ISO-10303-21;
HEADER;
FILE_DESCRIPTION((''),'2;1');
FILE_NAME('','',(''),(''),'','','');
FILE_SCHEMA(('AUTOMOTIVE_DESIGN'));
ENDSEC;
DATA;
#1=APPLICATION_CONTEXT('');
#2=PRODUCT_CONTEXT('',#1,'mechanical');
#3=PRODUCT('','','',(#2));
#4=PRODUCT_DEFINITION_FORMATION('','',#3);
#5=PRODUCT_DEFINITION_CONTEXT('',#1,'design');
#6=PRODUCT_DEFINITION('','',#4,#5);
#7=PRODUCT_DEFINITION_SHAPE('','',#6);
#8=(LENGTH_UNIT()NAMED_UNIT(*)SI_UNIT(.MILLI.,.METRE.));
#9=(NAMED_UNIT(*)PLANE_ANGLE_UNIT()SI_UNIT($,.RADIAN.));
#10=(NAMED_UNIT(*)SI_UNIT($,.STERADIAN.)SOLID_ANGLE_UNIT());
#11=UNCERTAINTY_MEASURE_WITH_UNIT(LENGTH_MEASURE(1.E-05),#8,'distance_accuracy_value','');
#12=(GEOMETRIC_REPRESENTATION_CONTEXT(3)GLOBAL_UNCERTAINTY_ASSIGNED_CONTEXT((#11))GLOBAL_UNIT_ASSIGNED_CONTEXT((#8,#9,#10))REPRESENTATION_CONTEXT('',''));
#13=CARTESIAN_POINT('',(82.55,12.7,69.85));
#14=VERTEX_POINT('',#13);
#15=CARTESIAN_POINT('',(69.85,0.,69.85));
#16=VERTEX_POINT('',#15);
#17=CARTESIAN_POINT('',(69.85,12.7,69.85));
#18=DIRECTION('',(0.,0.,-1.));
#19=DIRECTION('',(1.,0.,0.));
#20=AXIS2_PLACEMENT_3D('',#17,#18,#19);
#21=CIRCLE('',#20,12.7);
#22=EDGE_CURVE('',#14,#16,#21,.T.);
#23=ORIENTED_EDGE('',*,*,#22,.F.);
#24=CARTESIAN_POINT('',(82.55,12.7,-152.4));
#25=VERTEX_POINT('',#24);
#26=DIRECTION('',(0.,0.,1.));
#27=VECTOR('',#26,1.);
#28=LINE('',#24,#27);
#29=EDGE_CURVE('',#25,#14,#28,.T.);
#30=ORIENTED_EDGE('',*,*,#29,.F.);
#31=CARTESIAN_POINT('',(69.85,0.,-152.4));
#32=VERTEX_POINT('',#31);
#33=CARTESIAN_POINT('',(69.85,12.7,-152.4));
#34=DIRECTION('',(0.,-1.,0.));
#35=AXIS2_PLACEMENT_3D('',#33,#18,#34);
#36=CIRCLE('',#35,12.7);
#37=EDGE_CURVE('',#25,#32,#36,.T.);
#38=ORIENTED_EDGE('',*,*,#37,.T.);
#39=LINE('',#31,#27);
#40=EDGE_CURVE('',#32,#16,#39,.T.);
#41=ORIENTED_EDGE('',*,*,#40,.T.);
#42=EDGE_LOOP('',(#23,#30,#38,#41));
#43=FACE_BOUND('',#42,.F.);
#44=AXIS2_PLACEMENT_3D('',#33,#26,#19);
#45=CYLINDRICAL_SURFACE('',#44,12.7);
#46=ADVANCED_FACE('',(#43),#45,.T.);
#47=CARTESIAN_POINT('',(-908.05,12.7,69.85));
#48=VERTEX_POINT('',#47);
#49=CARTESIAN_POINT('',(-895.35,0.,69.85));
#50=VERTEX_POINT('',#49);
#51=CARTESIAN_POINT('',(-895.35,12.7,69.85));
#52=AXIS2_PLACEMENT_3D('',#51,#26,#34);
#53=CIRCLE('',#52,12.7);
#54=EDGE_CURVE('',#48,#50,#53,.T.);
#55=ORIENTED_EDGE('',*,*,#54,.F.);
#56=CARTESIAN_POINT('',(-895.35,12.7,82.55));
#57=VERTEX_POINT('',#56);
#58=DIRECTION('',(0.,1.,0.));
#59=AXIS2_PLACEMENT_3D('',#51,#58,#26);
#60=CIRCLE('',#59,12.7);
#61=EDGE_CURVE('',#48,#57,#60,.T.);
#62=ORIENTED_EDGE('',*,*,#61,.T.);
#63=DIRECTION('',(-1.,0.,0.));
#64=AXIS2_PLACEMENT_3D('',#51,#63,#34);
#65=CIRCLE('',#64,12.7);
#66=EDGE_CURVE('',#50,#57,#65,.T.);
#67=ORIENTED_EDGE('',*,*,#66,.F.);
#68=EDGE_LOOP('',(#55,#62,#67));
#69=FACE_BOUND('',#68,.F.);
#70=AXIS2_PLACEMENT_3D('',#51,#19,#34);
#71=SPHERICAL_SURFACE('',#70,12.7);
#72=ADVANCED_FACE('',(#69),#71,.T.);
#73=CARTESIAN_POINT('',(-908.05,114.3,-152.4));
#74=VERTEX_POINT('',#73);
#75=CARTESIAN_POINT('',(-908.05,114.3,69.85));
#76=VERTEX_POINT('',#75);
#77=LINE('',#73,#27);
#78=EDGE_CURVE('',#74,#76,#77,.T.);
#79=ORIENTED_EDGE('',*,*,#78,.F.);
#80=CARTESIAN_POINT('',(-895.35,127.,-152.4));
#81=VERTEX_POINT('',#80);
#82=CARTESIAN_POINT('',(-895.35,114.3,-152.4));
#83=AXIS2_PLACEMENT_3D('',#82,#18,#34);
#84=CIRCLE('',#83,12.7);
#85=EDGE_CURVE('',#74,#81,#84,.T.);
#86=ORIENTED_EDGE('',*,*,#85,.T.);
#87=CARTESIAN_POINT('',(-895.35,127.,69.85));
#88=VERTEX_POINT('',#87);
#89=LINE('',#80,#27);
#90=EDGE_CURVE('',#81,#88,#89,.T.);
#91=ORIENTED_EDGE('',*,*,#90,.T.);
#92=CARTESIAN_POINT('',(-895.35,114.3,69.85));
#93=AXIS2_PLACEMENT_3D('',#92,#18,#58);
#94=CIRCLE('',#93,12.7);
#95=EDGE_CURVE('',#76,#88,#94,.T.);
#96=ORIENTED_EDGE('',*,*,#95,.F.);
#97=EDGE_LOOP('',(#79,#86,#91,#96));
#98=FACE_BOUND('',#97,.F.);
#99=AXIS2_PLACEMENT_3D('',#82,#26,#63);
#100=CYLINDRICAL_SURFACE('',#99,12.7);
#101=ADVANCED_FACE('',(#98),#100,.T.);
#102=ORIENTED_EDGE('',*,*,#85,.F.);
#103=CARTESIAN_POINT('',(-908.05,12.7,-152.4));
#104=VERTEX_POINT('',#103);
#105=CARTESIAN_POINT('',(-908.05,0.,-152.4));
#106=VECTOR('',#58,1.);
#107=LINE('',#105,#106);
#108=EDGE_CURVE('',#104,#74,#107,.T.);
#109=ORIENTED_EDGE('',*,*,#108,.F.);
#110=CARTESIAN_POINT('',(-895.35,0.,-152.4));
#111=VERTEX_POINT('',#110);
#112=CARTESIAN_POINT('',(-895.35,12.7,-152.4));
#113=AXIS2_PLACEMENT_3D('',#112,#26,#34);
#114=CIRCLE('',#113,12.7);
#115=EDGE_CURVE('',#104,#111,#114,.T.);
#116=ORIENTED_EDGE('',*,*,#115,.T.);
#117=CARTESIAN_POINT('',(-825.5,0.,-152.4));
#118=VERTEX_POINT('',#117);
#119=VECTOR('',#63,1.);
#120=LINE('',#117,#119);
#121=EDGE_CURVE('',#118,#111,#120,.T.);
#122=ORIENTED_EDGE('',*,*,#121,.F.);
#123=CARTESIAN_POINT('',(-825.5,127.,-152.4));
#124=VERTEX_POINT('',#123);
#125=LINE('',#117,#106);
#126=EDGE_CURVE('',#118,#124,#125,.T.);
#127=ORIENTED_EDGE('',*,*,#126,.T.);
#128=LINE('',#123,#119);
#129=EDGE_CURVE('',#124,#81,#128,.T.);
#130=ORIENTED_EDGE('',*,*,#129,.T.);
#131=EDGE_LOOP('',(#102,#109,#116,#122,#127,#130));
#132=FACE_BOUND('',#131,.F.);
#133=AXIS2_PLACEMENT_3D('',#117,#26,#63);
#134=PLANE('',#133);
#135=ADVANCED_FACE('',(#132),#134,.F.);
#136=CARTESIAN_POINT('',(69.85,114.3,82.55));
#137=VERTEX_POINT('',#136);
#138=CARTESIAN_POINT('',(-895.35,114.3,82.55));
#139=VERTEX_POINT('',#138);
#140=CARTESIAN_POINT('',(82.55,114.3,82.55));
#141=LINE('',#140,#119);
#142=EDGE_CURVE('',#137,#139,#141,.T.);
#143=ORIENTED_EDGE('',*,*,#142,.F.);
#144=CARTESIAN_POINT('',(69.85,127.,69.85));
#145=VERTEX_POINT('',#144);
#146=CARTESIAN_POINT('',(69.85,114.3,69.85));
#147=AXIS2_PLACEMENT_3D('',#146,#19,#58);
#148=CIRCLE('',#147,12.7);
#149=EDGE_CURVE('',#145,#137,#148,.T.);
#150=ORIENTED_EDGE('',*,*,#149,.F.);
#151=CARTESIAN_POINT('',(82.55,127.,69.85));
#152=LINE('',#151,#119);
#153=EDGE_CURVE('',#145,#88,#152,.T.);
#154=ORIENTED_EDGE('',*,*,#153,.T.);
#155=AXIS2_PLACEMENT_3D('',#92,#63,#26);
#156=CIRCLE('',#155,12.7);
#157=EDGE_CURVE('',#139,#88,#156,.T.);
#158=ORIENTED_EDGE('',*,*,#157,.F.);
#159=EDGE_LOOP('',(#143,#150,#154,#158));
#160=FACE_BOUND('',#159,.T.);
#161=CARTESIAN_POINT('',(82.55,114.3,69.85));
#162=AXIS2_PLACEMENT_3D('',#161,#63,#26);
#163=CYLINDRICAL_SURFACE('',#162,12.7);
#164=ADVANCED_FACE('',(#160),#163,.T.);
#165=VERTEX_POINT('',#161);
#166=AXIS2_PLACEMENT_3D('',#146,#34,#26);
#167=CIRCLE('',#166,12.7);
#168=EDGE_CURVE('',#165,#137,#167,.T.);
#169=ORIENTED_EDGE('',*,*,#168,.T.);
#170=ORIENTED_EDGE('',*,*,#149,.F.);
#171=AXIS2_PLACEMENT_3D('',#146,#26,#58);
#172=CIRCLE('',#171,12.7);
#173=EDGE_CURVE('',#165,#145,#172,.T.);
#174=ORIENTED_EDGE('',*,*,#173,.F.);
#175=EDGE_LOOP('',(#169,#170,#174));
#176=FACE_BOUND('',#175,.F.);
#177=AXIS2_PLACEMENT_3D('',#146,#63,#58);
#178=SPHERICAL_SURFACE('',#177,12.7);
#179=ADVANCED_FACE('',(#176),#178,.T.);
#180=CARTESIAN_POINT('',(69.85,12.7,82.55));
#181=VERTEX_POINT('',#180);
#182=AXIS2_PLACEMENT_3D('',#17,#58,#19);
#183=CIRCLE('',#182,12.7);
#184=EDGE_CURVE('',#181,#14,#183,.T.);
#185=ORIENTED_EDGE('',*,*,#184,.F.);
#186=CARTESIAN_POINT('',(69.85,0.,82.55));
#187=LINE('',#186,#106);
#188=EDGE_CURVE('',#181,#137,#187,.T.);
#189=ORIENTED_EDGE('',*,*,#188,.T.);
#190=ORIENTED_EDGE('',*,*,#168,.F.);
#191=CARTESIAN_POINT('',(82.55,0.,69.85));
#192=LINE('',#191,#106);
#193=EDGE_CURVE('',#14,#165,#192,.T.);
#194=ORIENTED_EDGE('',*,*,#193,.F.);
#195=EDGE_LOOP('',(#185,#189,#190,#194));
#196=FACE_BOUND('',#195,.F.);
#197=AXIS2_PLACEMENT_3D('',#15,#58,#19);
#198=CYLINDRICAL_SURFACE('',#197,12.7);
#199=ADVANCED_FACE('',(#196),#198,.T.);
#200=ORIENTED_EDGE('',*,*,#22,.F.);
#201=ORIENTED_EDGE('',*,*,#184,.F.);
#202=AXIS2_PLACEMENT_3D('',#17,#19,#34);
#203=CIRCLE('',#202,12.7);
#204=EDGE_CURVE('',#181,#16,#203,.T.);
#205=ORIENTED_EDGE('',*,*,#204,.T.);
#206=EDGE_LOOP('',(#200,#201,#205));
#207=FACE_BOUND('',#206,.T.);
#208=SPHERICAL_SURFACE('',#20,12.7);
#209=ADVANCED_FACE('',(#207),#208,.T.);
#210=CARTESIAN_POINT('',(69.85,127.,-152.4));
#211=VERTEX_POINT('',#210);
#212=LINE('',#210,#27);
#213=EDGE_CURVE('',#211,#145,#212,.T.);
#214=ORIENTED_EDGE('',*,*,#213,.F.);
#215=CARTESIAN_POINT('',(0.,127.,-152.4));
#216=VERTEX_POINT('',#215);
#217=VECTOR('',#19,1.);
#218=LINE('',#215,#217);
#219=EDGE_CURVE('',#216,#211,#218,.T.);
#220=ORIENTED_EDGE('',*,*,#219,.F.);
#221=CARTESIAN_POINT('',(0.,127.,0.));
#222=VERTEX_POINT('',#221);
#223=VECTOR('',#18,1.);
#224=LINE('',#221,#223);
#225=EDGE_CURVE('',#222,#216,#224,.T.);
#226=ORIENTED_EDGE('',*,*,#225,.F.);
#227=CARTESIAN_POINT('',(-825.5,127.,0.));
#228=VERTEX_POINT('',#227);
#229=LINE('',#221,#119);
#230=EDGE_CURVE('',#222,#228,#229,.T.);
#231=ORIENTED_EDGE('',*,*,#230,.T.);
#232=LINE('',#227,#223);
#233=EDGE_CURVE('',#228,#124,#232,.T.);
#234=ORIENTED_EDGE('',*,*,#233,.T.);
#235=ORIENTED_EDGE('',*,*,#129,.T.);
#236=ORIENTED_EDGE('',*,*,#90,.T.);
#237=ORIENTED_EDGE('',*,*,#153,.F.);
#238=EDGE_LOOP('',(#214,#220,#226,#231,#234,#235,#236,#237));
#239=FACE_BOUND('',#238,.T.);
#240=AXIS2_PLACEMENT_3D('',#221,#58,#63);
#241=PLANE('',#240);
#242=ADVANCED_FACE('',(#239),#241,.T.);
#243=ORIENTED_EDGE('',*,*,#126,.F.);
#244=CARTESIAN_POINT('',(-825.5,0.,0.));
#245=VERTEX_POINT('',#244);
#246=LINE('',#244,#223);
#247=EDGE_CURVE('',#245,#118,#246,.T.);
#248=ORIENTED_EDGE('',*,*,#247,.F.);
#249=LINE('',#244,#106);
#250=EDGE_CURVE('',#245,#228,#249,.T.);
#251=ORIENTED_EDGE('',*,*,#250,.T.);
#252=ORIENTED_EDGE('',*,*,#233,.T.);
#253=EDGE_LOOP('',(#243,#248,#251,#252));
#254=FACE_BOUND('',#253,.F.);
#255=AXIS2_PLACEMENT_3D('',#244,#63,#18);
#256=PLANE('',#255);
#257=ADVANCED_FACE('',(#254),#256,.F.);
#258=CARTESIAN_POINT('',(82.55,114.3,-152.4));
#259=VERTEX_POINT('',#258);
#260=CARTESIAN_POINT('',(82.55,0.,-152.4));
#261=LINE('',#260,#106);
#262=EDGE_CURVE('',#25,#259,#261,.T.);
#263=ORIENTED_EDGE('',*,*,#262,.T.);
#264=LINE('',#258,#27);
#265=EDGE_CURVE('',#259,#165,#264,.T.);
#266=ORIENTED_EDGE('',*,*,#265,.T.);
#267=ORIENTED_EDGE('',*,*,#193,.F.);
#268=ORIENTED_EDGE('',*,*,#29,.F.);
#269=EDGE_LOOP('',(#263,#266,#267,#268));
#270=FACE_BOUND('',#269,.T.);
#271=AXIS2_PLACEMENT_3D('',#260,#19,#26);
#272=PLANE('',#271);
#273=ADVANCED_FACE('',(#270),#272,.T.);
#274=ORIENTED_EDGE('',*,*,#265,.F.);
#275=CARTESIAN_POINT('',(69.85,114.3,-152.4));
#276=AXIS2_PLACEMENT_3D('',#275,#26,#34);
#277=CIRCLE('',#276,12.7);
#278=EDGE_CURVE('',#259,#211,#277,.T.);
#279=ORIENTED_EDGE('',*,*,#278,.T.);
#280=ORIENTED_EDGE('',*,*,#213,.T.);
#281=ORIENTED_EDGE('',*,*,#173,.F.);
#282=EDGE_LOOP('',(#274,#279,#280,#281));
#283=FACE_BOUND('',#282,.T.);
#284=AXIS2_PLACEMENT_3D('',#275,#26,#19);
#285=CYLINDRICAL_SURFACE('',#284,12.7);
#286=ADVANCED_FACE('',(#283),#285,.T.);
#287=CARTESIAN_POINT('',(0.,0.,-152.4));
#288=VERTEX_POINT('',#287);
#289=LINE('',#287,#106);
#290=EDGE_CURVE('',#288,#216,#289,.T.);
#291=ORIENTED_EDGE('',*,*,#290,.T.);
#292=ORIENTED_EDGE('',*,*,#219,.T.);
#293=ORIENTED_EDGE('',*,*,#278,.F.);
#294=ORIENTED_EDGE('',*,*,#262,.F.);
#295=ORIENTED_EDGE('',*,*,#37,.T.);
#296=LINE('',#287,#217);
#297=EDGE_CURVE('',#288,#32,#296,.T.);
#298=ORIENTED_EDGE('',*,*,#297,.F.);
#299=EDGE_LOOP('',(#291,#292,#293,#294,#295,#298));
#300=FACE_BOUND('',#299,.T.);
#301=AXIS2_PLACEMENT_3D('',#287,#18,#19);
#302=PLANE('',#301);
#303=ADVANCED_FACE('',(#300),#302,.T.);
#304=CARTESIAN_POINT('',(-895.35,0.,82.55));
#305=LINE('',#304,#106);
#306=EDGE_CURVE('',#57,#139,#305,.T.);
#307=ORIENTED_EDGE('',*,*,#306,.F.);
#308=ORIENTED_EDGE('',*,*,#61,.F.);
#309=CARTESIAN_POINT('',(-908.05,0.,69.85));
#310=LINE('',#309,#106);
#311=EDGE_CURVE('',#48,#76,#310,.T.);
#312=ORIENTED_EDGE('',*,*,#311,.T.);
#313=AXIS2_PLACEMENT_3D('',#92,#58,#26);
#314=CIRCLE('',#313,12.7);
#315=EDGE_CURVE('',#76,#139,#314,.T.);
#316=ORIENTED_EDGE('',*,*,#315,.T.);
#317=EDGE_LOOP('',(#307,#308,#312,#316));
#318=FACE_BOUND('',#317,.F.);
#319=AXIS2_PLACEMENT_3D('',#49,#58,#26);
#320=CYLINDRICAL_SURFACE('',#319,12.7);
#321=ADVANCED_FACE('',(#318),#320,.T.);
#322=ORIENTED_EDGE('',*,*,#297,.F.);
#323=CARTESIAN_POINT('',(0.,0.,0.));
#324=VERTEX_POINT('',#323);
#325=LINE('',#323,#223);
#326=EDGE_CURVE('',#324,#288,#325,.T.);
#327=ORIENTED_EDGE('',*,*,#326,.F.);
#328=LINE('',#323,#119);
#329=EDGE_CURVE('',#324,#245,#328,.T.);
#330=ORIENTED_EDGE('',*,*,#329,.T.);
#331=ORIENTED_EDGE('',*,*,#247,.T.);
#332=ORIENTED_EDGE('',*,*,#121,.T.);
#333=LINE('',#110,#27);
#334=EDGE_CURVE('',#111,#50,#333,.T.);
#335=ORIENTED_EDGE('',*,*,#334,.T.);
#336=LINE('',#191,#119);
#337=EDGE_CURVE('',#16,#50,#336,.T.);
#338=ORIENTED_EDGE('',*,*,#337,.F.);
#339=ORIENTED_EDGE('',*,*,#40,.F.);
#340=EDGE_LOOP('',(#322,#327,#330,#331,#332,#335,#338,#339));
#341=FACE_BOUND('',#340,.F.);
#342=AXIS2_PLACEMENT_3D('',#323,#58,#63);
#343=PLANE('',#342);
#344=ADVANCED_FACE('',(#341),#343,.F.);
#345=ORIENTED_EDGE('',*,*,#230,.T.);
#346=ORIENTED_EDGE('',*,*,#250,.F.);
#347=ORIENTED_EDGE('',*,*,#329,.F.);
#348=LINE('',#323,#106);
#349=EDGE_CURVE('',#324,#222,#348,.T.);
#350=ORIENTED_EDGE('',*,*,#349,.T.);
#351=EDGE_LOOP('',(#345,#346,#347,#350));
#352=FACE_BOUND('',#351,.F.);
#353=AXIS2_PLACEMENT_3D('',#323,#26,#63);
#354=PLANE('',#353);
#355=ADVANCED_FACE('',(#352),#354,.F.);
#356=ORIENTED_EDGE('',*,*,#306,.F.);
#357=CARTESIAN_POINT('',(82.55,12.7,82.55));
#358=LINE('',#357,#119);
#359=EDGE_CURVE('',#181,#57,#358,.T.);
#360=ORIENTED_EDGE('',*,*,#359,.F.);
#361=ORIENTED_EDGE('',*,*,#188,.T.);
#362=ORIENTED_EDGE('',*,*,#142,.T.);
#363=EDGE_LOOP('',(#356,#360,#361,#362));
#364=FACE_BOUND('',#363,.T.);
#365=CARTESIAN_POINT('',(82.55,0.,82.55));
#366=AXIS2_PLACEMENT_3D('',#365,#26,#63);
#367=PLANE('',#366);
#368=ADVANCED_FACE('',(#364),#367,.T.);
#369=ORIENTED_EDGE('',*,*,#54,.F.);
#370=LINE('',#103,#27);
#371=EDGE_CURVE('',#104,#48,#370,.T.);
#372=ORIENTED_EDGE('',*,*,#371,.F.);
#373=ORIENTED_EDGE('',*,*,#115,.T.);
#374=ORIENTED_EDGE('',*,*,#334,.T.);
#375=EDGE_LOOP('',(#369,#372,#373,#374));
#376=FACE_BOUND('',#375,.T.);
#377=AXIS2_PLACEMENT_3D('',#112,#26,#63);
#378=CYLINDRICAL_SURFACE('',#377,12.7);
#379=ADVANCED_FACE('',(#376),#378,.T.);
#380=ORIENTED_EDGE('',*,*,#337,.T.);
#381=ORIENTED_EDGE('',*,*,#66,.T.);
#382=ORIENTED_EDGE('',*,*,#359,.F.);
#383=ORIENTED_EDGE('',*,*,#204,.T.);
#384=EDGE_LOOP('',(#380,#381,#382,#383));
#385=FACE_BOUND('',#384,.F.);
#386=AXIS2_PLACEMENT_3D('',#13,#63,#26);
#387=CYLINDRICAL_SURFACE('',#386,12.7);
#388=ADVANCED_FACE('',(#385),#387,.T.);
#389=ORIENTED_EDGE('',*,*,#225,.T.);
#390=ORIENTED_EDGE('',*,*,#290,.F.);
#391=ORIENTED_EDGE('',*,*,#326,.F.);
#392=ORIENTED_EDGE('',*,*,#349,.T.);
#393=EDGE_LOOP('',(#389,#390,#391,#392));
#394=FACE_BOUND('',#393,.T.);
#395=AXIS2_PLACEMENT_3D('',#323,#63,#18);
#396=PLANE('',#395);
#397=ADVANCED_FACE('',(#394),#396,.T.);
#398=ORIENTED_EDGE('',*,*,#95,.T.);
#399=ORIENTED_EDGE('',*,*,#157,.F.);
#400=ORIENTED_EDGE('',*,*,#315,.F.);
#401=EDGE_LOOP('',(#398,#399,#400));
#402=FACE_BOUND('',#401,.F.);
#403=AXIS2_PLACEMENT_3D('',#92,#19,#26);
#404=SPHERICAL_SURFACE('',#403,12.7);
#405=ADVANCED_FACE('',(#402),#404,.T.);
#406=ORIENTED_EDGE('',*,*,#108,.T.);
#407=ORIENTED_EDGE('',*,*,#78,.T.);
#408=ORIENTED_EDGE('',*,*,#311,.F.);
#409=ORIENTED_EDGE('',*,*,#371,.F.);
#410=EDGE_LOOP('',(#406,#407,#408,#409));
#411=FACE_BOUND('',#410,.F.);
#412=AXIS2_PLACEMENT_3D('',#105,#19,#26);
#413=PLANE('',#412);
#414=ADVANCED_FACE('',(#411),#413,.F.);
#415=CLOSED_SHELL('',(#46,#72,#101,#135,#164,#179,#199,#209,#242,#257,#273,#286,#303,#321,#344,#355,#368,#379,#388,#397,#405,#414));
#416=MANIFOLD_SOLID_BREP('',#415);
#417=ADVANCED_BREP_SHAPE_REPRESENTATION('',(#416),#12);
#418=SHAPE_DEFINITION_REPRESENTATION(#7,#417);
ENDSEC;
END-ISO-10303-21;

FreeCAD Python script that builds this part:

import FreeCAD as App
import Part
import Sketcher
Q = App.Units.Quantity


def edges_at(feature, points):
    """Names of the edges that pass closest to the given points."""
    edges = feature.Shape.Edges
    near = lambda p: min(range(len(edges)), key=lambda i: edges[i].distToShape(Part.Vertex(*p))[0])
    return sorted({f"Edge{near(p) + 1}" for p in points})

doc = App.newDocument("Part")
params = doc.addObject("Spreadsheet::Sheet", "Params")
for row, (alias, value) in enumerate([
    ("sketch1_height", "6 in"),
    ("sketch1_width", "32.5 in"),
    ("sketch1_width2", "3.25 in"),
    ("sketch1_height2", "9.25 in"),
    ("pad1_length", "5 in"),
    ("fillet_radius", "0.5 in"),
], start=1):
    params.set(f"A{row}", alias)
    params.set(f"B{row}", "=" + value)
    params.setAlias(f"B{row}", alias)

body = doc.addObject("PartDesign::Body", "Body")

# Sketch on XZ plane
sketch1 = doc.addObject("Sketcher::SketchObject", "Sketch")
body.addObject(sketch1)
sketch1.AttachmentSupport = (doc.XZ_Plane, [""])
sketch1.MapMode = "FlatFace"
sketch1.addGeometry([
    Part.LineSegment(App.Vector(0, -152, 0), App.Vector(0, 0, 0)),  # 0
    Part.LineSegment(App.Vector(0, 0, 0), App.Vector(-826, 0, 0)),  # 1
    Part.LineSegment(App.Vector(-826, 0, 0), App.Vector(-826, -152, 0)),  # 2
    Part.LineSegment(App.Vector(-826, -152, 0), App.Vector(-908, -152, 0)),  # 3
    Part.LineSegment(App.Vector(-908, -152, 0), App.Vector(-908, 83, 0)),  # 4
    Part.LineSegment(App.Vector(-908, 83, 0), App.Vector(83, 83, 0)),  # 5
    Part.LineSegment(App.Vector(83, 83, 0), App.Vector(83, -152, 0)),  # 6
    Part.LineSegment(App.Vector(83, -152, 0), App.Vector(0, -152, 0)),  # 7
], False)
sketch1.addConstraint([
    Sketcher.Constraint("Coincident", 0, 2, 1, 1),
    Sketcher.Constraint("Coincident", 1, 2, 2, 1),
    Sketcher.Constraint("Coincident", 2, 2, 3, 1),
    Sketcher.Constraint("Coincident", 3, 2, 4, 1),
    Sketcher.Constraint("Coincident", 4, 2, 5, 1),
    Sketcher.Constraint("Coincident", 5, 2, 6, 1),
    Sketcher.Constraint("Coincident", 6, 2, 7, 1),
    Sketcher.Constraint("Coincident", 7, 2, 0, 1),
    Sketcher.Constraint("Vertical", 0),
    Sketcher.Constraint("Horizontal", 1),
    Sketcher.Constraint("Vertical", 2),
    Sketcher.Constraint("Horizontal", 3),
    Sketcher.Constraint("Vertical", 4),
    Sketcher.Constraint("Horizontal", 5),
    Sketcher.Constraint("Vertical", 6),
    Sketcher.Constraint("Horizontal", 7),
    Sketcher.Constraint("Coincident", 0, 2, -1, 1),
    Sketcher.Constraint("Horizontal", 3, 2, 6, 2),
    Sketcher.Constraint("Equal", 3, 7),
    Sketcher.Constraint("DistanceY", 0, 1, 0, 2, Q("6 in")),
    Sketcher.Constraint("DistanceX", 1, 2, 1, 1, Q("32.5 in")),
    Sketcher.Constraint("DistanceX", 3, 2, 3, 1, Q("3.25 in")),
    Sketcher.Constraint("DistanceY", 4, 1, 4, 2, Q("9.25 in")),
])
sketch1.setExpression("Constraints[19]", "Params.sketch1_height")
sketch1.setExpression("Constraints[20]", "Params.sketch1_width")
sketch1.setExpression("Constraints[21]", "Params.sketch1_width2")
sketch1.setExpression("Constraints[22]", "Params.sketch1_height2")
pad1 = doc.addObject("PartDesign::Pad", "Pad")
body.addObject(pad1)
pad1.Profile = sketch1
pad1.setExpression("Length", "Params.pad1_length")
pad1.Reversed = True
doc.recompute()

fillet = doc.addObject("PartDesign::Fillet", "Fillet")
body.addObject(fillet)
fillet.Base = (pad1, edges_at(pad1, [
    (-412.75, 127, 82.55),
    (82.55, 127, -34.925),
    (82.55, 0, -34.925),
    (82.55, 63.5, 82.55),
    (-412.75, 0, 82.55),
    (-908.05, 0, -34.925),
    (-908.05, 63.5, 82.55),
    (-908.05, 127, -34.925),
]))
fillet.setExpression("Radius", "Params.fillet_radius")

doc.recompute()
